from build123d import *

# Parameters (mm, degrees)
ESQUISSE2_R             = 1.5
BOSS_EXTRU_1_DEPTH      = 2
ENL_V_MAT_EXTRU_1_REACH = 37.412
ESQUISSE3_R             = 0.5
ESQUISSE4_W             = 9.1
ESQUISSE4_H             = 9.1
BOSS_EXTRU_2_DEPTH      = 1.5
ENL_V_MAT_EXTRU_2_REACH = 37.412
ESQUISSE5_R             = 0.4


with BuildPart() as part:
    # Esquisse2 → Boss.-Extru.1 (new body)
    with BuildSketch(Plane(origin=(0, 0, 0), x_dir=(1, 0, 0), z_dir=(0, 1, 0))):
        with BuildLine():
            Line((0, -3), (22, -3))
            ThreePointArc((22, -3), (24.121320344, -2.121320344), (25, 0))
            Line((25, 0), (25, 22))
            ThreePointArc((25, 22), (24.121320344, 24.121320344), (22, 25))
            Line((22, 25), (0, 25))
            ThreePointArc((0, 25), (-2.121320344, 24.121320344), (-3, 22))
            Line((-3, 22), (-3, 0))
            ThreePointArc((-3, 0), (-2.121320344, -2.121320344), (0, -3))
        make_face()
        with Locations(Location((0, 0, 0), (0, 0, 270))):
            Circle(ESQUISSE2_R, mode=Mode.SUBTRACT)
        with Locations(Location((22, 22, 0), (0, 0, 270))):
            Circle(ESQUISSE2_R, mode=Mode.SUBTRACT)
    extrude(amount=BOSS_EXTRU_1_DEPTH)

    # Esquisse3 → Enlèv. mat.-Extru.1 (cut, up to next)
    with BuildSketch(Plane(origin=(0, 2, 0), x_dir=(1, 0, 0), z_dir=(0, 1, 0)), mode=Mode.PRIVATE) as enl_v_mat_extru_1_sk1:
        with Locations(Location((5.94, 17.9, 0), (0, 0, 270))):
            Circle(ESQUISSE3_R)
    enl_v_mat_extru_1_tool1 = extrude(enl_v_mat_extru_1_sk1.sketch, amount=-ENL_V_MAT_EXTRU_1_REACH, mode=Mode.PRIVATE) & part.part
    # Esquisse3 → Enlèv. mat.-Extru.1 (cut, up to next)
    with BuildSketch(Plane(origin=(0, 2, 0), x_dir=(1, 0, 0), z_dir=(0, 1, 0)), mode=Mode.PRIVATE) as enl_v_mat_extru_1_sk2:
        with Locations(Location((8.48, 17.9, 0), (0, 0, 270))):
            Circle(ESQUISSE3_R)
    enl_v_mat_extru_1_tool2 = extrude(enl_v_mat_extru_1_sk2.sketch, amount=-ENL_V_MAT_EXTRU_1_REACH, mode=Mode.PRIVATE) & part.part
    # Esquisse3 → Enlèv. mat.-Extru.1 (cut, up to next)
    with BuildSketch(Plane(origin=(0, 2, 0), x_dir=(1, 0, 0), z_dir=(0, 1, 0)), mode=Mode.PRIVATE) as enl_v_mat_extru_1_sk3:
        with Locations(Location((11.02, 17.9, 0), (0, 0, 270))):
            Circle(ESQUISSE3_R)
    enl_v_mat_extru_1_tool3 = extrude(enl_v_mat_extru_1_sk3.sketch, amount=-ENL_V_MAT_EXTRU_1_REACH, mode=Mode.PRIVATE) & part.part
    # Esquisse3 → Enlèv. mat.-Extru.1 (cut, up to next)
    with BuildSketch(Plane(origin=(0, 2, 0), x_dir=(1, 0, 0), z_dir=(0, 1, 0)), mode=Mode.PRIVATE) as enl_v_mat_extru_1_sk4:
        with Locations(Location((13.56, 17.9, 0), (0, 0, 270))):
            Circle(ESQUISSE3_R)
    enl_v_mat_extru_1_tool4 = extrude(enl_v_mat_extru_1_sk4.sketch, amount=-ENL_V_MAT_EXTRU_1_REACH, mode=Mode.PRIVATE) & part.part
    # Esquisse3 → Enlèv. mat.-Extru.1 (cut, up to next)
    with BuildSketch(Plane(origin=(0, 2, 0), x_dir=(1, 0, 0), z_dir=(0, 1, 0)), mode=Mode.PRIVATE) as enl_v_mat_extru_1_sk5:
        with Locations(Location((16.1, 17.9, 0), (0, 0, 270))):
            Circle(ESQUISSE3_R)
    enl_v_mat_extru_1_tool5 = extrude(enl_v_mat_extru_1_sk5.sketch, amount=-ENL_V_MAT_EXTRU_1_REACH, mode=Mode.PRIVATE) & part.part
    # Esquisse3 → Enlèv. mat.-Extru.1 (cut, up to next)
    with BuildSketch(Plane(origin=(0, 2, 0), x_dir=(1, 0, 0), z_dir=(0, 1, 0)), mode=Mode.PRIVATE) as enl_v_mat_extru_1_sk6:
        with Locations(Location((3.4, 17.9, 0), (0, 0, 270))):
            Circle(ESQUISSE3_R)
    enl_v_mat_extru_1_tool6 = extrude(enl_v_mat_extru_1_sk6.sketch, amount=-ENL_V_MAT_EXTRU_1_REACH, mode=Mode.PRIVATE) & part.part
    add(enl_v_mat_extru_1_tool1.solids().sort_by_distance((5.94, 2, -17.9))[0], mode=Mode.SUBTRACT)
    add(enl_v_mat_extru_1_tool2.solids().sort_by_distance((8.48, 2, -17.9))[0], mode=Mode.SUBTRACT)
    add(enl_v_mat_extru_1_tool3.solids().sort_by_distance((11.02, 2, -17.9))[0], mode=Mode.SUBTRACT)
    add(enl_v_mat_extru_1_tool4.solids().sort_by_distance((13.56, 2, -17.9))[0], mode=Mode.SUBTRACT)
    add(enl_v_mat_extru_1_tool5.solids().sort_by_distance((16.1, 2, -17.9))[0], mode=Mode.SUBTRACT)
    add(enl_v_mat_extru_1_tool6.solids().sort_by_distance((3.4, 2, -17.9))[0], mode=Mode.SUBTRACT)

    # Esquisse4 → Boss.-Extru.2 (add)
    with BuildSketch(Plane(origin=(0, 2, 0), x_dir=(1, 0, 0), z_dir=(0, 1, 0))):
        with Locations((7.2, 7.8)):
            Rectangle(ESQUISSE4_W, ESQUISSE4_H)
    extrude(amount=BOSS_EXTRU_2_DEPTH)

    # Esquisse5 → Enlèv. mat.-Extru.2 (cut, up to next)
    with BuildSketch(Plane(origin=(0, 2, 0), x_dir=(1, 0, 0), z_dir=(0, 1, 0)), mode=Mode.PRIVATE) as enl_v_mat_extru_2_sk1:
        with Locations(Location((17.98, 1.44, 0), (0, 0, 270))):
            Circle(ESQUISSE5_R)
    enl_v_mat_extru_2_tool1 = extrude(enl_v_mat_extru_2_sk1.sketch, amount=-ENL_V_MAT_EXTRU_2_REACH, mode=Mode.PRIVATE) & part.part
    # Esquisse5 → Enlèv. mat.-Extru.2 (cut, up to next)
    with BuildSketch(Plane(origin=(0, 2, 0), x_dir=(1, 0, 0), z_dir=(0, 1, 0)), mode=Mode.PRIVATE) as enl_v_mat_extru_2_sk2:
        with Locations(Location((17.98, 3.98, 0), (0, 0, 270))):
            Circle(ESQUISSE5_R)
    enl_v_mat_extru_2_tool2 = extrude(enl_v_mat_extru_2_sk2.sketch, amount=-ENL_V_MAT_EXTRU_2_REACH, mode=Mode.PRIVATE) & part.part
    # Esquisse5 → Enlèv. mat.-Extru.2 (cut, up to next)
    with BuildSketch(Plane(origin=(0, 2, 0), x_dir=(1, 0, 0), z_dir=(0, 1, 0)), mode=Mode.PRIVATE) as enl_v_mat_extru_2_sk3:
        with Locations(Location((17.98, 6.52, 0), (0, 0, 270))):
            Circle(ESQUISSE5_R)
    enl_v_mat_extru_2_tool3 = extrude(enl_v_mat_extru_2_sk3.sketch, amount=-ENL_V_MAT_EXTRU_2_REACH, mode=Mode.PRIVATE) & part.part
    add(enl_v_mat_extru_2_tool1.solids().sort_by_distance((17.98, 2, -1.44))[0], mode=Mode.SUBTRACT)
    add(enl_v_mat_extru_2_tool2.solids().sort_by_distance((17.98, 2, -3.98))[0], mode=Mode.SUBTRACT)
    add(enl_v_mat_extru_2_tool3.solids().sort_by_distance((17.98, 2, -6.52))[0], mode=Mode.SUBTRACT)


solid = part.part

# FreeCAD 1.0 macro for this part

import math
import FreeCAD as App
import Part
import Sketcher

V = App.Vector
Q = App.Units.Quantity


def add_polygon(sketch, points):
    """Adds a closed chain of lines whose ends are joined by coincident constraints."""
    first, n = sketch.GeometryCount, len(points)
    for a, b in zip(points, points[1:] + points[:1]):
        sketch.addGeometry(Part.LineSegment(App.Vector(*a, 0), App.Vector(*b, 0)), False)
    for i in range(n):
        sketch.addConstraint(Sketcher.Constraint("Coincident", first + i, 2, first + (i + 1) % n, 1))

doc = App.newDocument("Part")
body = doc.addObject("PartDesign::Body", "Body")

sketch1 = doc.addObject("Sketcher::SketchObject", "Sketch")
body.addObject(sketch1)
sketch1.AttachmentSupport = (doc.XZ_Plane, [""])
sketch1.MapMode = "FlatFace"
sketch1.addGeometry(Part.LineSegment(V(0, 3, 0), V(22, 3, 0)), False)
sketch1.addGeometry(Part.ArcOfCircle(Part.Circle(V(22, 0, 0), V(0, 0, 1), 3), math.radians(0), math.radians(90)), False)
sketch1.addGeometry(Part.LineSegment(V(25, 0, 0), V(25, -22, 0)), False)
sketch1.addGeometry(Part.ArcOfCircle(Part.Circle(V(22, -22, 0), V(0, 0, 1), 3), math.radians(-90), math.radians(0)), False)
sketch1.addGeometry(Part.LineSegment(V(22, -25, 0), V(0, -25, 0)), False)
sketch1.addGeometry(Part.ArcOfCircle(Part.Circle(V(0, -22, 0), V(0, 0, 1), 3), math.radians(180), math.radians(270)), False)
sketch1.addGeometry(Part.LineSegment(V(-3, -22, 0), V(-3, 0, 0)), False)
sketch1.addGeometry(Part.ArcOfCircle(Part.Circle(V(0, 0, 0), V(0, 0, 1), 3), math.radians(90), math.radians(180)), False)
sketch1.addGeometry(Part.Circle(V(0, 0, 0), V(0, 0, 1), 1.5), False)
sketch1.addGeometry(Part.Circle(V(22, -22, 0), V(0, 0, 1), 1.5), False)
sketch1.addConstraint(Sketcher.Constraint("Tangent", 0, 2, 1, 2))
sketch1.addConstraint(Sketcher.Constraint("Tangent", 1, 1, 2, 1))
sketch1.addConstraint(Sketcher.Constraint("Tangent", 2, 2, 3, 2))
sketch1.addConstraint(Sketcher.Constraint("Tangent", 3, 1, 4, 1))
sketch1.addConstraint(Sketcher.Constraint("Tangent", 4, 2, 5, 2))
sketch1.addConstraint(Sketcher.Constraint("Tangent", 5, 1, 6, 1))
sketch1.addConstraint(Sketcher.Constraint("Tangent", 6, 2, 7, 2))
sketch1.addConstraint(Sketcher.Constraint("Tangent", 7, 1, 0, 1))
sketch1.addConstraint(Sketcher.Constraint("Horizontal", 0))
sketch1.addConstraint(Sketcher.Constraint("Vertical", 2))
sketch1.addConstraint(Sketcher.Constraint("Horizontal", 4))
sketch1.addConstraint(Sketcher.Constraint("Vertical", 6))
sketch1.addConstraint(Sketcher.Constraint("Coincident", 7, 3, -1, 1))
sketch1.addConstraint(Sketcher.Constraint("Coincident", 8, 3, -1, 1))
sketch1.addConstraint(Sketcher.Constraint("Coincident", 9, 3, 3, 3))
sketch1.addConstraint(Sketcher.Constraint("Equal", 1, 3))
sketch1.addConstraint(Sketcher.Constraint("Equal", 3, 5))
sketch1.addConstraint(Sketcher.Constraint("Equal", 5, 7))
sketch1.addConstraint(Sketcher.Constraint("Equal", 8, 9))
sketch1.addConstraint(Sketcher.Constraint("Equal", 4, 2))
sketch1.addConstraint(Sketcher.Constraint("Diameter", 8, Q("3 mm")))
sketch1.addConstraint(Sketcher.Constraint("Radius", 1, Q("3 mm")))
sketch1.addConstraint(Sketcher.Constraint("DistanceX", 0, 1, 0, 2, Q("22 mm")))
pad1 = doc.addObject("PartDesign::Pad", "Pad")
body.addObject(pad1)
pad1.Profile = sketch1
pad1.Length = 2
pad1.Reversed = True

sketch2 = doc.addObject("Sketcher::SketchObject", "Sketch001")
body.addObject(sketch2)
sketch2.AttachmentSupport = (doc.XZ_Plane, [""])
sketch2.MapMode = "FlatFace"
sketch2.AttachmentOffset = App.Placement(V(0, 0, -2), App.Rotation())
sketch2.addGeometry(Part.Circle(V(5.94, -17.9, 0), V(0, 0, 1), 0.5), False)
sketch2.addConstraint(Sketcher.Constraint("Diameter", 0, Q("1 mm")))
sketch2.addConstraint(Sketcher.Constraint("DistanceY", 0, 3, -1, 1, Q("17.9 mm")))
sketch2.addConstraint(Sketcher.Constraint("DistanceX", -1, 1, 0, 3, Q("5.94 mm")))
pocket1 = doc.addObject("PartDesign::Pocket", "Pocket")
body.addObject(pocket1)
pocket1.Profile = sketch2
pocket1.Type = "UpToFirst"
pocket1.Reversed = True

sketch3 = doc.addObject("Sketcher::SketchObject", "Sketch002")
body.addObject(sketch3)
sketch3.AttachmentSupport = (doc.XZ_Plane, [""])
sketch3.MapMode = "FlatFace"
sketch3.AttachmentOffset = App.Placement(V(0, 0, -2), App.Rotation())
sketch3.addGeometry(Part.Circle(V(8.48, -17.9, 0), V(0, 0, 1), 0.5), False)
sketch3.addConstraint(Sketcher.Constraint("Diameter", 0, Q("1 mm")))
sketch3.addConstraint(Sketcher.Constraint("DistanceY", 0, 3, -1, 1, Q("17.9 mm")))
sketch3.addConstraint(Sketcher.Constraint("DistanceX", -1, 1, 0, 3, Q("8.48 mm")))
pocket2 = doc.addObject("PartDesign::Pocket", "Pocket001")
body.addObject(pocket2)
pocket2.Profile = sketch3
pocket2.Type = "UpToFirst"
pocket2.Reversed = True

sketch4 = doc.addObject("Sketcher::SketchObject", "Sketch003")
body.addObject(sketch4)
sketch4.AttachmentSupport = (doc.XZ_Plane, [""])
sketch4.MapMode = "FlatFace"
sketch4.AttachmentOffset = App.Placement(V(0, 0, -2), App.Rotation())
sketch4.addGeometry(Part.Circle(V(11.02, -17.9, 0), V(0, 0, 1), 0.5), False)
sketch4.addConstraint(Sketcher.Constraint("Diameter", 0, Q("1 mm")))
sketch4.addConstraint(Sketcher.Constraint("DistanceY", 0, 3, -1, 1, Q("17.9 mm")))
sketch4.addConstraint(Sketcher.Constraint("DistanceX", -1, 1, 0, 3, Q("11.02 mm")))
pocket3 = doc.addObject("PartDesign::Pocket", "Pocket002")
body.addObject(pocket3)
pocket3.Profile = sketch4
pocket3.Type = "UpToFirst"
pocket3.Reversed = True

sketch5 = doc.addObject("Sketcher::SketchObject", "Sketch004")
body.addObject(sketch5)
sketch5.AttachmentSupport = (doc.XZ_Plane, [""])
sketch5.MapMode = "FlatFace"
sketch5.AttachmentOffset = App.Placement(V(0, 0, -2), App.Rotation())
sketch5.addGeometry(Part.Circle(V(13.56, -17.9, 0), V(0, 0, 1), 0.5), False)
sketch5.addConstraint(Sketcher.Constraint("Diameter", 0, Q("1 mm")))
sketch5.addConstraint(Sketcher.Constraint("DistanceY", 0, 3, -1, 1, Q("17.9 mm")))
sketch5.addConstraint(Sketcher.Constraint("DistanceX", -1, 1, 0, 3, Q("13.56 mm")))
pocket4 = doc.addObject("PartDesign::Pocket", "Pocket003")
body.addObject(pocket4)
pocket4.Profile = sketch5
pocket4.Type = "UpToFirst"
pocket4.Reversed = True

sketch6 = doc.addObject("Sketcher::SketchObject", "Sketch005")
body.addObject(sketch6)
sketch6.AttachmentSupport = (doc.XZ_Plane, [""])
sketch6.MapMode = "FlatFace"
sketch6.AttachmentOffset = App.Placement(V(0, 0, -2), App.Rotation())
sketch6.addGeometry(Part.Circle(V(16.1, -17.9, 0), V(0, 0, 1), 0.5), False)
sketch6.addConstraint(Sketcher.Constraint("Diameter", 0, Q("1 mm")))
sketch6.addConstraint(Sketcher.Constraint("DistanceX", -1, 1, 0, 3, Q("16.1 mm")))
sketch6.addConstraint(Sketcher.Constraint("DistanceY", 0, 3, -1, 1, Q("17.9 mm")))
pocket5 = doc.addObject("PartDesign::Pocket", "Pocket004")
body.addObject(pocket5)
pocket5.Profile = sketch6
pocket5.Type = "UpToFirst"
pocket5.Reversed = True

sketch7 = doc.addObject("Sketcher::SketchObject", "Sketch006")
body.addObject(sketch7)
sketch7.AttachmentSupport = (doc.XZ_Plane, [""])
sketch7.MapMode = "FlatFace"
sketch7.AttachmentOffset = App.Placement(V(0, 0, -2), App.Rotation())
sketch7.addGeometry(Part.Circle(V(3.4, -17.9, 0), V(0, 0, 1), 0.5), False)
sketch7.addConstraint(Sketcher.Constraint("Diameter", 0, Q("1 mm")))
sketch7.addConstraint(Sketcher.Constraint("DistanceX", -1, 1, 0, 3, Q("3.4 mm")))
sketch7.addConstraint(Sketcher.Constraint("DistanceY", 0, 3, -1, 1, Q("17.9 mm")))
pocket6 = doc.addObject("PartDesign::Pocket", "Pocket005")
body.addObject(pocket6)
pocket6.Profile = sketch7
pocket6.Type = "UpToFirst"
pocket6.Reversed = True

sketch8 = doc.addObject("Sketcher::SketchObject", "Sketch007")
body.addObject(sketch8)
sketch8.AttachmentSupport = (doc.XZ_Plane, [""])
sketch8.MapMode = "FlatFace"
sketch8.AttachmentOffset = App.Placement(V(0, 0, -2), App.Rotation())
add_polygon(sketch8, [(2.65, -12.35), (2.65, -3.25), (11.75, -3.25), (11.75, -12.35)])
sketch8.addConstraint(Sketcher.Constraint("Vertical", 0))
sketch8.addConstraint(Sketcher.Constraint("Horizontal", 1))
sketch8.addConstraint(Sketcher.Constraint("Vertical", 2))
sketch8.addConstraint(Sketcher.Constraint("Horizontal", 3))
sketch8.addConstraint(Sketcher.Constraint("Equal", 3, 0))
sketch8.addConstraint(Sketcher.Constraint("DistanceX", 1, 1, 1, 2, Q("9.1 mm")))
sketch8.addConstraint(Sketcher.Constraint("DistanceX", -1, 1, 0, 2, Q("2.65 mm")))
sketch8.addConstraint(Sketcher.Constraint("DistanceY", 0, 2, -1, 1, Q("3.25 mm")))
pad2 = doc.addObject("PartDesign::Pad", "Pad001")
body.addObject(pad2)
pad2.Profile = sketch8
pad2.Length = 1.5
pad2.Reversed = True

sketch9 = doc.addObject("Sketcher::SketchObject", "Sketch008")
body.addObject(sketch9)
sketch9.AttachmentSupport = (doc.XZ_Plane, [""])
sketch9.MapMode = "FlatFace"
sketch9.AttachmentOffset = App.Placement(V(0, 0, -2), App.Rotation())
sketch9.addGeometry(Part.Circle(V(17.98, -1.44, 0), V(0, 0, 1), 0.4), False)
sketch9.addConstraint(Sketcher.Constraint("Diameter", 0, Q("0.8 mm")))
sketch9.addConstraint(Sketcher.Constraint("DistanceX", -1, 1, 0, 3, Q("17.98 mm")))
sketch9.addConstraint(Sketcher.Constraint("DistanceY", 0, 3, -1, 1, Q("1.44 mm")))
pocket7 = doc.addObject("PartDesign::Pocket", "Pocket006")
body.addObject(pocket7)
pocket7.Profile = sketch9
pocket7.Type = "UpToFirst"
pocket7.Reversed = True

sketch10 = doc.addObject("Sketcher::SketchObject", "Sketch009")
body.addObject(sketch10)
sketch10.AttachmentSupport = (doc.XZ_Plane, [""])
sketch10.MapMode = "FlatFace"
sketch10.AttachmentOffset = App.Placement(V(0, 0, -2), App.Rotation())
sketch10.addGeometry(Part.Circle(V(17.98, -3.98, 0), V(0, 0, 1), 0.4), False)
sketch10.addConstraint(Sketcher.Constraint("Diameter", 0, Q("0.8 mm")))
sketch10.addConstraint(Sketcher.Constraint("DistanceX", -1, 1, 0, 3, Q("17.98 mm")))
sketch10.addConstraint(Sketcher.Constraint("DistanceY", 0, 3, -1, 1, Q("3.98 mm")))
pocket8 = doc.addObject("PartDesign::Pocket", "Pocket007")
body.addObject(pocket8)
pocket8.Profile = sketch10
pocket8.Type = "UpToFirst"
pocket8.Reversed = True

sketch11 = doc.addObject("Sketcher::SketchObject", "Sketch010")
body.addObject(sketch11)
sketch11.AttachmentSupport = (doc.XZ_Plane, [""])
sketch11.MapMode = "FlatFace"
sketch11.AttachmentOffset = App.Placement(V(0, 0, -2), App.Rotation())
sketch11.addGeometry(Part.Circle(V(17.98, -6.52, 0), V(0, 0, 1), 0.4), False)
sketch11.addConstraint(Sketcher.Constraint("Diameter", 0, Q("0.8 mm")))
sketch11.addConstraint(Sketcher.Constraint("DistanceX", -1, 1, 0, 3, Q("17.98 mm")))
sketch11.addConstraint(Sketcher.Constraint("DistanceY", 0, 3, -1, 1, Q("6.52 mm")))
pocket9 = doc.addObject("PartDesign::Pocket", "Pocket008")
body.addObject(pocket9)
pocket9.Profile = sketch11
pocket9.Type = "UpToFirst"
pocket9.Reversed = True

doc.recompute()
